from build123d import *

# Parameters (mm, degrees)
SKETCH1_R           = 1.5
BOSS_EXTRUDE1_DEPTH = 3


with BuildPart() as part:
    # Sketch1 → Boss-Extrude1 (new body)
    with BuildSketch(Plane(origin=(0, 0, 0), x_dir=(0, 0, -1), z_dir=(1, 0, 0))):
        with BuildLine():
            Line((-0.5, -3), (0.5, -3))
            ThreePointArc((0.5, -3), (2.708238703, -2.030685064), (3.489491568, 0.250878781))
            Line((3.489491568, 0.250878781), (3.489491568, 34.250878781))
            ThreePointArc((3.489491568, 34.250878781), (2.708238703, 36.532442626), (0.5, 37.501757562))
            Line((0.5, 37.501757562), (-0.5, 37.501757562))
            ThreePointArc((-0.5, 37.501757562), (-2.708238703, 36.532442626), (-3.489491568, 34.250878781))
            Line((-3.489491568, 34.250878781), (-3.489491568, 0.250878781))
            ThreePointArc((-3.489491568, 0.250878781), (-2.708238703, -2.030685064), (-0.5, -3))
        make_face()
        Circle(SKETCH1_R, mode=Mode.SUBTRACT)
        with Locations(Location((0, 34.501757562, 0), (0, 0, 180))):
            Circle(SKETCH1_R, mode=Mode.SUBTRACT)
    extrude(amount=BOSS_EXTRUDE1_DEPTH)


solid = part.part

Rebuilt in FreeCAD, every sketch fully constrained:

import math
import FreeCAD as App
import Part
import Sketcher
from FreeCAD import Vector
Q = App.Units.Quantity

doc = App.newDocument("Part")
params = doc.addObject("Spreadsheet::Sheet", "Params")
for row, (alias, value) in enumerate([
    ("sketch1_diameter", "3 mm"),
    ("sketch1_radius", "3 mm"),
    ("sketch1_width", "34 mm"),
    ("sketch1_height", "1 mm"),
    ("pad1_length", "3 mm"),
], start=1):
    params.set(f"A{row}", alias)
    params.set(f"B{row}", "=" + value)
    params.setAlias(f"B{row}", alias)

body = doc.addObject("PartDesign::Body", "Body")

sketch1 = body.newObject("Sketcher::SketchObject", "Sketch")
sketch1.AttachmentSupport = (doc.getObject("YZ_Plane"), [""])
sketch1.MapMode = "FlatFace"
sketch1.addGeometry([
    Part.LineSegment(Vector(-3, 0.5, 0), Vector(-3, -0.5, 0)),
    Part.ArcOfCircle(Part.Circle(Vector(0, -0.5, 0), Vector(0, 0, 1), 3), math.radians(180), math.radians(275)),
    Part.LineSegment(Vector(0.3, -3.5, 0), Vector(34.3, -3.5, 0)),
    Part.ArcOfCircle(Part.Circle(Vector(34.5, -0.5, 0), Vector(0, 0, 1), 3), math.radians(-95), math.radians(0)),
    Part.LineSegment(Vector(37.5, -0.5, 0), Vector(37.5, 0.5, 0)),
    Part.ArcOfCircle(Part.Circle(Vector(34.5, 0.5, 0), Vector(0, 0, 1), 3), math.radians(0), math.radians(95)),
    Part.LineSegment(Vector(34.3, 3.5, 0), Vector(0.3, 3.5, 0)),
    Part.ArcOfCircle(Part.Circle(Vector(0, 0.5, 0), Vector(0, 0, 1), 3), math.radians(85), math.radians(180)),
    Part.Circle(Vector(0, 0, 0), Vector(0, 0, 1), 1.5),
    Part.Circle(Vector(34.5, 0, 0), Vector(0, 0, 1), 1.5),
], False)
sketch1.addConstraint([
    Sketcher.Constraint("Tangent", 0, 2, 1, 1),
    Sketcher.Constraint("Coincident", 1, 2, 2, 1),
    Sketcher.Constraint("Coincident", 2, 2, 3, 1),
    Sketcher.Constraint("Tangent", 3, 2, 4, 1),
    Sketcher.Constraint("Tangent", 4, 2, 5, 1),
    Sketcher.Constraint("Coincident", 5, 2, 6, 1),
    Sketcher.Constraint("Coincident", 6, 2, 7, 1),
    Sketcher.Constraint("Tangent", 7, 2, 0, 1),
    Sketcher.Constraint("Vertical", 0),
    Sketcher.Constraint("Horizontal", 2),
    Sketcher.Constraint("Vertical", 4),
    Sketcher.Constraint("Horizontal", 6),
    Sketcher.Constraint("Coincident", 8, 3, -1, 1),
    Sketcher.Constraint("Equal", 1, 3),
    Sketcher.Constraint("Equal", 3, 5),
    Sketcher.Constraint("Equal", 5, 7),
    Sketcher.Constraint("Equal", 8, 9),
    Sketcher.Constraint("Symmetric", 1, 3, 7, 3, -1, 1),
    Sketcher.Constraint("Symmetric", 2, 2, 5, 2, -1),
    Sketcher.Constraint("PointOnObject", 9, 3, -1),
    Sketcher.Constraint("Horizontal", 1, 3, 3, 3),
    Sketcher.Constraint("Vertical", 5, 3, 9, 3),
    Sketcher.Constraint("Diameter", 8, Q("3 mm")),
    Sketcher.Constraint("Radius", 1, Q("3 mm")),
    Sketcher.Constraint("DistanceX", 2, 1, 2, 2, Q("34 mm")),
    Sketcher.Constraint("DistanceY", 0, 2, 0, 1, Q("1 mm")),
    Sketcher.Constraint("DistanceX", -1, 1, 1, 2, Q("0.250879 mm")),
])
sketch1.setExpression("Constraints[22]", "Params.sketch1_diameter")
sketch1.setExpression("Constraints[23]", "Params.sketch1_radius")
sketch1.setExpression("Constraints[24]", "Params.sketch1_width")
sketch1.setExpression("Constraints[25]", "Params.sketch1_height")
pad1 = body.newObject("PartDesign::Pad", "Pad")
pad1.Profile = sketch1
pad1.setExpression("Length", "Params.pad1_length")

doc.recompute()
